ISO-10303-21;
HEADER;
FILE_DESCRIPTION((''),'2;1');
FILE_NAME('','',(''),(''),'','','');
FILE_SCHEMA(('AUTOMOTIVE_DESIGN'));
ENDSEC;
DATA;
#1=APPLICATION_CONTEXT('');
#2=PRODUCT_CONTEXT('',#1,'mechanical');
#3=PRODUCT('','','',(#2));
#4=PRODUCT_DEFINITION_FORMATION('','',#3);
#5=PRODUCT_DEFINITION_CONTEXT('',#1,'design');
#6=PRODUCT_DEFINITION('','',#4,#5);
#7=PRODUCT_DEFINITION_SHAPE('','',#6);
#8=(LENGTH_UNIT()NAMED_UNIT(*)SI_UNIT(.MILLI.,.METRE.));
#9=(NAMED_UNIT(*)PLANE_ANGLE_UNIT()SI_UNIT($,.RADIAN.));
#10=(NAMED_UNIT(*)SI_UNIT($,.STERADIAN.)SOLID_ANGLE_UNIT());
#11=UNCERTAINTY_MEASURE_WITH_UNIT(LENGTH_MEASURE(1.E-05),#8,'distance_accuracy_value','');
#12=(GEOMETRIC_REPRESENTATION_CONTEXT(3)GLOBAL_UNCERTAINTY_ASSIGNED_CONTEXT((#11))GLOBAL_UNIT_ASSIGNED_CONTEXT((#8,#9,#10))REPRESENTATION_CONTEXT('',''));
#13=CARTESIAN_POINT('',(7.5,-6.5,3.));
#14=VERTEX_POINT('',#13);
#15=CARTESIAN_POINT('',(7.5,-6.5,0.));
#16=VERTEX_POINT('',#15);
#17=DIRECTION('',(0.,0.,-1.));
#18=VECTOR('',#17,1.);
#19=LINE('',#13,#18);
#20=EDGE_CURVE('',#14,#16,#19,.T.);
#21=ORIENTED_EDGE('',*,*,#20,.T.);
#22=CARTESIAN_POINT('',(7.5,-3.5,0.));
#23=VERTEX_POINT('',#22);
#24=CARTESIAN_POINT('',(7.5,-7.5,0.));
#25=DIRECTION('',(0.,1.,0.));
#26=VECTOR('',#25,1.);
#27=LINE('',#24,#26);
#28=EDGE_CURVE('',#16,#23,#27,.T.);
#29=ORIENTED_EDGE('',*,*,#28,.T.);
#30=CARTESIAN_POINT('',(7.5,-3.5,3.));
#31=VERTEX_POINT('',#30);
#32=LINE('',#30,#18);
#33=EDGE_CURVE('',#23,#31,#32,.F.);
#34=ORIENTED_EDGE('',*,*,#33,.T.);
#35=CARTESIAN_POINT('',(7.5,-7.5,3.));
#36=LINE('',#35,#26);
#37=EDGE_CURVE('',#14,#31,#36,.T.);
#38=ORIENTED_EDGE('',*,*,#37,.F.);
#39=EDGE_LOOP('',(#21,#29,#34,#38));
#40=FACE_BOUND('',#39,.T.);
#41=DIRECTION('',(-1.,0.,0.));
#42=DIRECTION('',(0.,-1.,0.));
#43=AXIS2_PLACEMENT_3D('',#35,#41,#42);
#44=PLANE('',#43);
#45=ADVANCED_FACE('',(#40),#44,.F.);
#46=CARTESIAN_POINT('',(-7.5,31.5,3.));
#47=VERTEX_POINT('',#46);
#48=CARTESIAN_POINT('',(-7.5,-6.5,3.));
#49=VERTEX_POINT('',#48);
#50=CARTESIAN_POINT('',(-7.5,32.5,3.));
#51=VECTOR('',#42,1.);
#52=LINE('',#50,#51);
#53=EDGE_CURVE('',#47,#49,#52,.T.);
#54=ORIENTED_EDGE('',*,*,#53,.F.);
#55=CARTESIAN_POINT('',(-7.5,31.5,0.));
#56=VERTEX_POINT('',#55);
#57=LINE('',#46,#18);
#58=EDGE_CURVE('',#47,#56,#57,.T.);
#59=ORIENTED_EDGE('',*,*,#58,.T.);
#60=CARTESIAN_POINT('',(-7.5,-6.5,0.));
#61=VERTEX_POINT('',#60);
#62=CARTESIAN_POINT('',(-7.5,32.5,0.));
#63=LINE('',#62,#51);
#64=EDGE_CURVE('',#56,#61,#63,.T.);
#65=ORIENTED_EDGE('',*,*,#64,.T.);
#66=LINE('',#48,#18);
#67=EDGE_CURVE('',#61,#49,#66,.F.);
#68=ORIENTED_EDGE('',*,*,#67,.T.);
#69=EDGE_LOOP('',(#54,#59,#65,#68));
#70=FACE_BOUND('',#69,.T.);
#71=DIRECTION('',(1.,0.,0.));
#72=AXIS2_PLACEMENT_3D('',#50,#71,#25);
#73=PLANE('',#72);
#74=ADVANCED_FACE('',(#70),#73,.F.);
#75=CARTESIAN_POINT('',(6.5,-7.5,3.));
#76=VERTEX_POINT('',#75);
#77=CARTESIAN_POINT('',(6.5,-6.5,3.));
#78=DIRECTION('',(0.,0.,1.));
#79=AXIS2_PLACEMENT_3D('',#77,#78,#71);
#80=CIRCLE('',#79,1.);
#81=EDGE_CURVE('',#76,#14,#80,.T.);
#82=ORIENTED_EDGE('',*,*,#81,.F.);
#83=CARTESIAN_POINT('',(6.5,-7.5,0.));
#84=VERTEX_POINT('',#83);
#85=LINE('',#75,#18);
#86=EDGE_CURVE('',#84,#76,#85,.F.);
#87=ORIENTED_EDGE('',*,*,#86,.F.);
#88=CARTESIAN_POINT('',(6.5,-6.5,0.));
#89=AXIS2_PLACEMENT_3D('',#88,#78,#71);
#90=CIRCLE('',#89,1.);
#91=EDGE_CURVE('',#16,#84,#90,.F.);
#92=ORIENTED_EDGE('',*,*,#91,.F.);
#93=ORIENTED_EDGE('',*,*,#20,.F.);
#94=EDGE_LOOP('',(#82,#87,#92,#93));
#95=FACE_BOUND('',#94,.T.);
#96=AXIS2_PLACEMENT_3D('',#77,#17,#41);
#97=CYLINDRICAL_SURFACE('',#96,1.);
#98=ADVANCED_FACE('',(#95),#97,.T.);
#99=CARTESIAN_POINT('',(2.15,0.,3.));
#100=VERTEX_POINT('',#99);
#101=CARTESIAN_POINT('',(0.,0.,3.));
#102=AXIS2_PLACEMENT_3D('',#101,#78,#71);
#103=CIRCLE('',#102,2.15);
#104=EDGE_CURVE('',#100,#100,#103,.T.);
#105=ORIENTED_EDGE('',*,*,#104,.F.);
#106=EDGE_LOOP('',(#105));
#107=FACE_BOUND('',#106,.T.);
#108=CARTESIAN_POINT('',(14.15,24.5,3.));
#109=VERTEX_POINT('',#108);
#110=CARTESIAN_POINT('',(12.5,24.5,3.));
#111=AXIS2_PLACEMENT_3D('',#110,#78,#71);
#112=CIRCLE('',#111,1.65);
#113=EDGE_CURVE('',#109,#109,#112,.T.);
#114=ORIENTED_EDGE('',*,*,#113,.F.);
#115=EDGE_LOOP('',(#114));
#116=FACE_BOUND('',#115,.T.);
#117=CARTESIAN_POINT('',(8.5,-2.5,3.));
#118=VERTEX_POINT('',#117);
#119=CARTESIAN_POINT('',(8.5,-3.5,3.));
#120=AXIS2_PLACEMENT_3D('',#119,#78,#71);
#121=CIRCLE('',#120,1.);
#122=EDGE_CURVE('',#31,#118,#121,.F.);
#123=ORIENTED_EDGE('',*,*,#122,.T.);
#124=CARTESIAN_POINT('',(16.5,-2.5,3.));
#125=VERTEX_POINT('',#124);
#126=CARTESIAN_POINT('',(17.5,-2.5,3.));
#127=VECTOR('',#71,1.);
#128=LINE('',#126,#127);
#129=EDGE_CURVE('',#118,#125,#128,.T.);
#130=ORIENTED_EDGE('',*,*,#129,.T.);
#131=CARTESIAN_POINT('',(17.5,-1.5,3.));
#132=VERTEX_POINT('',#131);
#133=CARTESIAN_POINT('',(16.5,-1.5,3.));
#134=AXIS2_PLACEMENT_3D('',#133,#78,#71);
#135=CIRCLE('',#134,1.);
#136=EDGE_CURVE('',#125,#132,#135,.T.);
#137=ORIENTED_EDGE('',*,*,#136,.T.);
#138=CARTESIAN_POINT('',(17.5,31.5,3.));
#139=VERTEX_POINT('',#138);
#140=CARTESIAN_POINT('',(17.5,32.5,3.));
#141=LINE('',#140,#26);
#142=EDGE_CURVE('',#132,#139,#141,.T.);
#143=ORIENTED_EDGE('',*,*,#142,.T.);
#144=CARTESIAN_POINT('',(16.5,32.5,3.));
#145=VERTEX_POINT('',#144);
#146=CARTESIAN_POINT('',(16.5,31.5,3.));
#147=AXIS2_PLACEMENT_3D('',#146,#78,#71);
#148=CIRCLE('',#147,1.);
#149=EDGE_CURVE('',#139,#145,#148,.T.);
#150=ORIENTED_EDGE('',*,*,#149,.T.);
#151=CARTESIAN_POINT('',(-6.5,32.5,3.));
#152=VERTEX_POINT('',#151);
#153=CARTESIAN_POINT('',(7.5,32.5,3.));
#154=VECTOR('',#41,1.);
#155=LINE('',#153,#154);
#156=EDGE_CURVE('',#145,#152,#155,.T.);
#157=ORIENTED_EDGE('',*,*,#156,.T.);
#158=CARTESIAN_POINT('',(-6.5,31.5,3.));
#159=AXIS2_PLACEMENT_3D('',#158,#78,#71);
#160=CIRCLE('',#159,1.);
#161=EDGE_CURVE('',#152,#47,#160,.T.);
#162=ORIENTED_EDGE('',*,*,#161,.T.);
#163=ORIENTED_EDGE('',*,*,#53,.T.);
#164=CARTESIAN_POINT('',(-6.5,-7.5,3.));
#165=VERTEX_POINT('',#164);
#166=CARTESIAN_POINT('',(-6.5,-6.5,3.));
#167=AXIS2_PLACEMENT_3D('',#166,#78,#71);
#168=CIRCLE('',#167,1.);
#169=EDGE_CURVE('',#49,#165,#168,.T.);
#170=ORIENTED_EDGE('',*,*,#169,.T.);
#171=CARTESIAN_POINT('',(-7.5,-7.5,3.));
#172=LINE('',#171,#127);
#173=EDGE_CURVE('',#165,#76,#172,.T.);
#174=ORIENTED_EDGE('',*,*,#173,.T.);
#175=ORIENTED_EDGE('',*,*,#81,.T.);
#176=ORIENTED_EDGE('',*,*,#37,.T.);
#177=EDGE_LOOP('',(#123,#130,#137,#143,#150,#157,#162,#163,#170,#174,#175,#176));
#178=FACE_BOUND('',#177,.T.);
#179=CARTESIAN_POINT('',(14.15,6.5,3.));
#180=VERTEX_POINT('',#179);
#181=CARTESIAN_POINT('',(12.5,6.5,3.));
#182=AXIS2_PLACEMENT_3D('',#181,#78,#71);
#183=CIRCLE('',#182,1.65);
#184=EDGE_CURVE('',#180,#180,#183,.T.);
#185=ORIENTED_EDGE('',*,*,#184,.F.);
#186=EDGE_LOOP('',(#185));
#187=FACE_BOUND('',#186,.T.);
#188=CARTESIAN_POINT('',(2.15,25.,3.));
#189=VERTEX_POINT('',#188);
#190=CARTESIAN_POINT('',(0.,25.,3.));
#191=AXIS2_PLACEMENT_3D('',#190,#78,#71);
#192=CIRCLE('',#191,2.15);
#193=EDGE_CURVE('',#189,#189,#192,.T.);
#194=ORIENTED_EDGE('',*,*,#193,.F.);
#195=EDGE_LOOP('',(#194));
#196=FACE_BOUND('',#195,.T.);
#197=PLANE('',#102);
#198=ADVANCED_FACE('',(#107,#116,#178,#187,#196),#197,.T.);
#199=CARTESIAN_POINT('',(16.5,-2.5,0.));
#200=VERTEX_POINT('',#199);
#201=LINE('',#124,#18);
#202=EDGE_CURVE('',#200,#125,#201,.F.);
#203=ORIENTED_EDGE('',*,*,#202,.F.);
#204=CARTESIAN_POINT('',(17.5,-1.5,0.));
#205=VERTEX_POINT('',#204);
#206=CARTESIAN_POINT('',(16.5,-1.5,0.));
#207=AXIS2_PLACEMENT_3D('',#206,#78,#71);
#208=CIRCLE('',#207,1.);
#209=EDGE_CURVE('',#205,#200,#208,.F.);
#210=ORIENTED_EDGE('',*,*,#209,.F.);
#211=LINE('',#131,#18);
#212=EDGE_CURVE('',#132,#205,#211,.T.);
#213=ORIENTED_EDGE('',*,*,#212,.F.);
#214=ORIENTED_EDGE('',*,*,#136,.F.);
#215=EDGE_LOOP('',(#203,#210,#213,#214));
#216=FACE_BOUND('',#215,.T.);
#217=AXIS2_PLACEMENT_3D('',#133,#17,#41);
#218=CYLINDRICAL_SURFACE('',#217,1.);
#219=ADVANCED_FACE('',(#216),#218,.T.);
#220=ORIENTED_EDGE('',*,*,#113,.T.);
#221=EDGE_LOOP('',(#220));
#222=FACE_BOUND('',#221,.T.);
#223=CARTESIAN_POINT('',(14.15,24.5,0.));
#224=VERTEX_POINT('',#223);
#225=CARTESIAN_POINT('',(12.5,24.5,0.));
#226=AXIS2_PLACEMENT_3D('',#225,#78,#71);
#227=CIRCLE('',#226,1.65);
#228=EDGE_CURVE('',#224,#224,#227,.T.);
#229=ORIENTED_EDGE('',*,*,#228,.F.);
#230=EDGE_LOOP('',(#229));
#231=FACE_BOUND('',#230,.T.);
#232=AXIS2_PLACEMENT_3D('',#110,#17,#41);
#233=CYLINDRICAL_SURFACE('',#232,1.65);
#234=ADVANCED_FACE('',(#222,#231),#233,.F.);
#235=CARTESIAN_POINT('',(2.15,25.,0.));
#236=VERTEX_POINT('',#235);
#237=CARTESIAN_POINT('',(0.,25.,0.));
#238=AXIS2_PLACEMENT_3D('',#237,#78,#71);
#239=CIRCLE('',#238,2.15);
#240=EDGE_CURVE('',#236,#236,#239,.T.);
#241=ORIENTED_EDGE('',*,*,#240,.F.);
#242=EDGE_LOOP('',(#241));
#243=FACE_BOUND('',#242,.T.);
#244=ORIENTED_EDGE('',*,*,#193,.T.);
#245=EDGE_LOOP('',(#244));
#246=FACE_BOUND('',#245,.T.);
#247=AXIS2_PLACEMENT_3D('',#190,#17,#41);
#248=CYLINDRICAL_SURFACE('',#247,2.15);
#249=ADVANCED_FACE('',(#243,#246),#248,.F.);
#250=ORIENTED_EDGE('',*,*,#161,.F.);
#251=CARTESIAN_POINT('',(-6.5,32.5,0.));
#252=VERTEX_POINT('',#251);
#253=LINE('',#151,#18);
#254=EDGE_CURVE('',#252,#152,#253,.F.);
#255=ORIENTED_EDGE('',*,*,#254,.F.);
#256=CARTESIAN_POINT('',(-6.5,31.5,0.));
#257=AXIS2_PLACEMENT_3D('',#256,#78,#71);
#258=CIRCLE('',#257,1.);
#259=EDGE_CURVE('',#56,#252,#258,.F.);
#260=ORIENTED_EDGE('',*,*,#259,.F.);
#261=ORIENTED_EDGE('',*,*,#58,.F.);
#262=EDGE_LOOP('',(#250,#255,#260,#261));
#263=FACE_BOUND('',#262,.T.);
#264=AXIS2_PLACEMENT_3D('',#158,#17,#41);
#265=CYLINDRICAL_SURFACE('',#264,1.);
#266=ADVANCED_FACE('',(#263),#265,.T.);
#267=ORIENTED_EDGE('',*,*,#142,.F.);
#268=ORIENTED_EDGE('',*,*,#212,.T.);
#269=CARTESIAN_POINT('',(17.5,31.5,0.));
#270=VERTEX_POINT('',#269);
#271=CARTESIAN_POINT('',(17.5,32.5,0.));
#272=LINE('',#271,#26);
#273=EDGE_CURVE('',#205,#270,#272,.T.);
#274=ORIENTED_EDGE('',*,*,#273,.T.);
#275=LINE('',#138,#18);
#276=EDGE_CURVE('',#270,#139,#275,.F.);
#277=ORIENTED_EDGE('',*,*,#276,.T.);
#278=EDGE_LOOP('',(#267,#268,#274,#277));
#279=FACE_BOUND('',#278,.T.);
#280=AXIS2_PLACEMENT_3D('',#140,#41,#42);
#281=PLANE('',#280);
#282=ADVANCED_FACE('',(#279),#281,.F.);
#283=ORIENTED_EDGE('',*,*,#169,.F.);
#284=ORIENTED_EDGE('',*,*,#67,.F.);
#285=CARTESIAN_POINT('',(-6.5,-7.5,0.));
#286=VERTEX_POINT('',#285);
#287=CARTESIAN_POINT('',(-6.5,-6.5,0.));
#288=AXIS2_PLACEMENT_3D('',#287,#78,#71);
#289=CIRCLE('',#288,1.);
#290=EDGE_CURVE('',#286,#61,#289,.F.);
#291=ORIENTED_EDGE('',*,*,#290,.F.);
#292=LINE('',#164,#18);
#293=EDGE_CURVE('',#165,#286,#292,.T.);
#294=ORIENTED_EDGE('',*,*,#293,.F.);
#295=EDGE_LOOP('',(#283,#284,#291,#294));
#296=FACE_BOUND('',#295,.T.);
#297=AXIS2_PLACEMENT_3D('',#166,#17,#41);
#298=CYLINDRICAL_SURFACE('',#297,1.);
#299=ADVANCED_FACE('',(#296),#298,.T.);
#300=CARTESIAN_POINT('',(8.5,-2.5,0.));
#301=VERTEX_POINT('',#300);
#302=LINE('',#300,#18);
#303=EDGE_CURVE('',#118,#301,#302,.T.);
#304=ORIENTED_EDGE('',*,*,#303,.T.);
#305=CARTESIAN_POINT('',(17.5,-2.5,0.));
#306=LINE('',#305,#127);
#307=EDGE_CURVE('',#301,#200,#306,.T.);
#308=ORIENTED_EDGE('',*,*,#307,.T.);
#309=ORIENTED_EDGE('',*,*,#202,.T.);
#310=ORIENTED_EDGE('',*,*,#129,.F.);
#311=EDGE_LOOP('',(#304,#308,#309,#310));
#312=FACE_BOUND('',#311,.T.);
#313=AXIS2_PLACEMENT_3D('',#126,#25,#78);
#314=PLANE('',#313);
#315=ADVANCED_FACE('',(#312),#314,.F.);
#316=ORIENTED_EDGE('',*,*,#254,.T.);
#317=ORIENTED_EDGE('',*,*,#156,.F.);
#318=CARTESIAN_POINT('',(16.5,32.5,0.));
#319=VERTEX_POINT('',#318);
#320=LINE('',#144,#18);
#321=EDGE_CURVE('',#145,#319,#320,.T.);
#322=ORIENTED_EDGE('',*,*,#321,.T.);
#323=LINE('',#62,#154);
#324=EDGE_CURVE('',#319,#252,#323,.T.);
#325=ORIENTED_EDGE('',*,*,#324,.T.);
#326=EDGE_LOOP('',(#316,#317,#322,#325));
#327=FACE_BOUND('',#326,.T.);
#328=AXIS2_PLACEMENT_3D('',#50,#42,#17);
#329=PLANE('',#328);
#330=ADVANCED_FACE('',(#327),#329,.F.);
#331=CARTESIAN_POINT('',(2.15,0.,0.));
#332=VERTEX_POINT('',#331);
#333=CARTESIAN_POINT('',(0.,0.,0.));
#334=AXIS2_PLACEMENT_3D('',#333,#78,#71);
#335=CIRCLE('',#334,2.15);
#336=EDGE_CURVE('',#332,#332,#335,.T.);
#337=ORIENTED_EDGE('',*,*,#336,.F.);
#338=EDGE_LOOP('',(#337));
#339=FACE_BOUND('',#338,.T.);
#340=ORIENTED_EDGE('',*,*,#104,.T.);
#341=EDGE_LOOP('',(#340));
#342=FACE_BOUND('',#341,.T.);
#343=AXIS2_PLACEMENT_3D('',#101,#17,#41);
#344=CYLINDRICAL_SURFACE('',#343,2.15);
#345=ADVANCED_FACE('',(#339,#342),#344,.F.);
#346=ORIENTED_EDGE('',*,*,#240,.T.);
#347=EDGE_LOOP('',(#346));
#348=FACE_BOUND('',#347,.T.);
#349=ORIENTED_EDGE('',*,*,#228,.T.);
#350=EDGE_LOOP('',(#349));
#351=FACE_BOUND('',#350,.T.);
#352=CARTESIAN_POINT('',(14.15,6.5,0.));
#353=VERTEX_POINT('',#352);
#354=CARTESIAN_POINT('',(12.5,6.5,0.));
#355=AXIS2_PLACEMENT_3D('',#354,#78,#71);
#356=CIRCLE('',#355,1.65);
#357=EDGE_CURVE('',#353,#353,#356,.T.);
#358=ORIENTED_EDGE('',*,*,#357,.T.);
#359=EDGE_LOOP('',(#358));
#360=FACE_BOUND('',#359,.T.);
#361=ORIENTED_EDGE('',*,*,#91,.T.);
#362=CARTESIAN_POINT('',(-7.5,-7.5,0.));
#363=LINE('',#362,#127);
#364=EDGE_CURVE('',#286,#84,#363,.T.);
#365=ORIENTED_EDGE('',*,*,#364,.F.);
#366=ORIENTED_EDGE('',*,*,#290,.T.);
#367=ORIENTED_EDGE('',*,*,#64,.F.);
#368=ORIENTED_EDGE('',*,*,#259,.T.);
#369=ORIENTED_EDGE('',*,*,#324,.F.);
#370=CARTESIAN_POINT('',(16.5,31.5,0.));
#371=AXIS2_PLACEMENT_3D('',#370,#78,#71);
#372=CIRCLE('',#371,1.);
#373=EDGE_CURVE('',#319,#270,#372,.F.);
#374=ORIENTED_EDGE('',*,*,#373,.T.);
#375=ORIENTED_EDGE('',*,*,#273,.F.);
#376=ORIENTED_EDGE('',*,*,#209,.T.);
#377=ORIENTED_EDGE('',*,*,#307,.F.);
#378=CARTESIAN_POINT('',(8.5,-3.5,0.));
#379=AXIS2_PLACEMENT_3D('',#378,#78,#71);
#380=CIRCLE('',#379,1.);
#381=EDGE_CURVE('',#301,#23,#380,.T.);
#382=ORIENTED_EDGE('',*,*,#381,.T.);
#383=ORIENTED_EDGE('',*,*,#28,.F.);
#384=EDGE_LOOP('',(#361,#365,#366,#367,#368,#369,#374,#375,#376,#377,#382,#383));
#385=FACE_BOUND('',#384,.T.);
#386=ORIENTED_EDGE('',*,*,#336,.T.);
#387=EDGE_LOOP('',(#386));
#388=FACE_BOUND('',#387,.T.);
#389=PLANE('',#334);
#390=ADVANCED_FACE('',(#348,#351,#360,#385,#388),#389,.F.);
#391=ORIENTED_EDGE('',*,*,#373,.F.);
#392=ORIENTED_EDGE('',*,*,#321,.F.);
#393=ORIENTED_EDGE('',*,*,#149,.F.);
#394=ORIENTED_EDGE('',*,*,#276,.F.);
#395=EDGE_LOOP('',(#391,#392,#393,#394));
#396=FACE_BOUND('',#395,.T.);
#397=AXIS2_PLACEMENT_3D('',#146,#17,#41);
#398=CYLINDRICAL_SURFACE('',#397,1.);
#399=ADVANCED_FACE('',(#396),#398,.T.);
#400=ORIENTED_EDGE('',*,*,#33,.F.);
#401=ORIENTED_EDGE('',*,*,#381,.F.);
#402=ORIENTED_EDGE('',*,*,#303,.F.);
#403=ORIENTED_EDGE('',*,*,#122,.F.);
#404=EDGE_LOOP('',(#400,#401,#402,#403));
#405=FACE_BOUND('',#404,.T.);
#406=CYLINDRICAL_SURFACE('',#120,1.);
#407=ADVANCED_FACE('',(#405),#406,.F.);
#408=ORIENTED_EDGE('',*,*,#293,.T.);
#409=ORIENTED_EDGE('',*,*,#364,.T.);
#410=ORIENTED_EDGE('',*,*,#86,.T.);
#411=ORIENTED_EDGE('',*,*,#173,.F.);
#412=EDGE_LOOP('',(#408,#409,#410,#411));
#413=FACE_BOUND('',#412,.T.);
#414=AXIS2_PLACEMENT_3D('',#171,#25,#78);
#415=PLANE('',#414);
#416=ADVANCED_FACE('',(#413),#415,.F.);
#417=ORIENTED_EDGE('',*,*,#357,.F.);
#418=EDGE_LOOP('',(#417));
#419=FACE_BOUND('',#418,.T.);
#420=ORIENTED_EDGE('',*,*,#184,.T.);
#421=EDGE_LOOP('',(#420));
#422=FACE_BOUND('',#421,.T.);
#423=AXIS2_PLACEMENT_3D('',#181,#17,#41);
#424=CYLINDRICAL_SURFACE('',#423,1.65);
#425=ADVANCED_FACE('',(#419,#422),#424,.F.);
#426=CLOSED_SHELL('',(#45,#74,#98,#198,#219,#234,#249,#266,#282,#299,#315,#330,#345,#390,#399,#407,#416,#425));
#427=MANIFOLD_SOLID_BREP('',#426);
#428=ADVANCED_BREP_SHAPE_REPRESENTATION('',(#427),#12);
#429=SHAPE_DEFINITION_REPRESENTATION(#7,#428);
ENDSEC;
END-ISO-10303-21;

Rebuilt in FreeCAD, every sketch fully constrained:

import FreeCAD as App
import Part
import Sketcher


def edges_at(feature, points):
    """Names of the edges that pass closest to the given points."""
    edges = feature.Shape.Edges
    near = lambda p: min(range(len(edges)), key=lambda i: edges[i].distToShape(Part.Vertex(*p))[0])
    return sorted({f"Edge{near(p) + 1}" for p in points})

doc = App.newDocument("Part")
body = doc.addObject("PartDesign::Body", "Body")

# Sketch on XY plane
sketch1 = doc.addObject("Sketcher::SketchObject", "Sketch")
body.addObject(sketch1)
sketch1.AttachmentSupport = (doc.XY_Plane, [""])
sketch1.MapMode = "FlatFace"
sketch1.addGeometry([
    Part.LineSegment(App.Vector(17.5, 32.5, 0), App.Vector(-7.5, 32.5, 0)),  # 0
    Part.LineSegment(App.Vector(-7.5, 32.5, 0), App.Vector(-7.5, -7.5, 0)),  # 1
    Part.LineSegment(App.Vector(-7.5, -7.5, 0), App.Vector(7.5, -7.5, 0)),  # 2
    Part.LineSegment(App.Vector(7.5, -7.5, 0), App.Vector(7.5, -2.5, 0)),  # 3
    Part.LineSegment(App.Vector(7.5, -2.5, 0), App.Vector(17.5, -2.5, 0)),  # 4
    Part.LineSegment(App.Vector(17.5, -2.5, 0), App.Vector(17.5, 32.5, 0)),  # 5
    Part.Circle(App.Vector(12.5, 6.5, 0), App.Vector(0, 0, 1), 1.6),  # 6
    Part.Circle(App.Vector(0, 0, 0), App.Vector(0, 0, 1), 2.1),  # 7
    Part.Circle(App.Vector(12.5, 24.5, 0), App.Vector(0, 0, 1), 1.6),  # 8
    Part.Circle(App.Vector(0, 25, 0), App.Vector(0, 0, 1), 2.1),  # 9
], False)
sketch1.addConstraint([
    Sketcher.Constraint("Coincident", 0, 2, 1, 1),
    Sketcher.Constraint("Coincident", 1, 2, 2, 1),
    Sketcher.Constraint("Coincident", 2, 2, 3, 1),
    Sketcher.Constraint("Coincident", 3, 2, 4, 1),
    Sketcher.Constraint("Coincident", 4, 2, 5, 1),
    Sketcher.Constraint("Coincident", 5, 2, 0, 1),
    Sketcher.Constraint("Horizontal", 0),
    Sketcher.Constraint("Vertical", 1),
    Sketcher.Constraint("Horizontal", 2),
    Sketcher.Constraint("Vertical", 3),
    Sketcher.Constraint("Horizontal", 4),
    Sketcher.Constraint("Vertical", 5),
    Sketcher.Constraint("Coincident", 7, 3, -1, 1),
    Sketcher.Constraint("Equal", 6, 8),
    Sketcher.Constraint("Equal", 7, 9),
    Sketcher.Constraint("PointOnObject", 9, 3, -2),
    Sketcher.Constraint("Vertical", 6, 3, 8, 3),
    Sketcher.Constraint("Diameter", 6, 3.3),
    Sketcher.Constraint("Diameter", 7, 4.3),
    Sketcher.Constraint("DistanceX", 0, 2, 0, 1, 25.0),
    Sketcher.Constraint("DistanceX", 2, 1, 2, 2, 15.0),
    Sketcher.Constraint("DistanceY", 1, 2, 1, 1, 40.0),
    Sketcher.Constraint("DistanceY", 3, 1, 3, 2, 5.0),
    Sketcher.Constraint("DistanceY", -1, 1, 9, 3, 25.0),
    Sketcher.Constraint("DistanceY", 6, 3, 8, 3, 18.0),
    Sketcher.Constraint("DistanceX", 0, 2, 8, 3, 20.0),
    Sketcher.Constraint("DistanceY", 8, 3, 0, 2, 8.0),
    Sketcher.Constraint("DistanceX", -1, 1, 6, 3, 12.5),
    Sketcher.Constraint("DistanceY", -1, 1, 6, 3, 6.5),
])
pad1 = doc.addObject("PartDesign::Pad", "Pad")
body.addObject(pad1)
pad1.Profile = sketch1
pad1.Length = 3
doc.recompute()

fillet = doc.addObject("PartDesign::Fillet", "Fillet")
body.addObject(fillet)
fillet.Base = (pad1, edges_at(pad1, [
    (7.5, -7.5, 1.5),
    (-7.5, -7.5, 1.5),
    (-7.5, 32.5, 1.5),
    (17.5, 32.5, 1.5),
    (17.5, -2.5, 1.5),
    (7.5, -2.5, 1.5),
]))
fillet.Radius = 1

doc.recompute()
